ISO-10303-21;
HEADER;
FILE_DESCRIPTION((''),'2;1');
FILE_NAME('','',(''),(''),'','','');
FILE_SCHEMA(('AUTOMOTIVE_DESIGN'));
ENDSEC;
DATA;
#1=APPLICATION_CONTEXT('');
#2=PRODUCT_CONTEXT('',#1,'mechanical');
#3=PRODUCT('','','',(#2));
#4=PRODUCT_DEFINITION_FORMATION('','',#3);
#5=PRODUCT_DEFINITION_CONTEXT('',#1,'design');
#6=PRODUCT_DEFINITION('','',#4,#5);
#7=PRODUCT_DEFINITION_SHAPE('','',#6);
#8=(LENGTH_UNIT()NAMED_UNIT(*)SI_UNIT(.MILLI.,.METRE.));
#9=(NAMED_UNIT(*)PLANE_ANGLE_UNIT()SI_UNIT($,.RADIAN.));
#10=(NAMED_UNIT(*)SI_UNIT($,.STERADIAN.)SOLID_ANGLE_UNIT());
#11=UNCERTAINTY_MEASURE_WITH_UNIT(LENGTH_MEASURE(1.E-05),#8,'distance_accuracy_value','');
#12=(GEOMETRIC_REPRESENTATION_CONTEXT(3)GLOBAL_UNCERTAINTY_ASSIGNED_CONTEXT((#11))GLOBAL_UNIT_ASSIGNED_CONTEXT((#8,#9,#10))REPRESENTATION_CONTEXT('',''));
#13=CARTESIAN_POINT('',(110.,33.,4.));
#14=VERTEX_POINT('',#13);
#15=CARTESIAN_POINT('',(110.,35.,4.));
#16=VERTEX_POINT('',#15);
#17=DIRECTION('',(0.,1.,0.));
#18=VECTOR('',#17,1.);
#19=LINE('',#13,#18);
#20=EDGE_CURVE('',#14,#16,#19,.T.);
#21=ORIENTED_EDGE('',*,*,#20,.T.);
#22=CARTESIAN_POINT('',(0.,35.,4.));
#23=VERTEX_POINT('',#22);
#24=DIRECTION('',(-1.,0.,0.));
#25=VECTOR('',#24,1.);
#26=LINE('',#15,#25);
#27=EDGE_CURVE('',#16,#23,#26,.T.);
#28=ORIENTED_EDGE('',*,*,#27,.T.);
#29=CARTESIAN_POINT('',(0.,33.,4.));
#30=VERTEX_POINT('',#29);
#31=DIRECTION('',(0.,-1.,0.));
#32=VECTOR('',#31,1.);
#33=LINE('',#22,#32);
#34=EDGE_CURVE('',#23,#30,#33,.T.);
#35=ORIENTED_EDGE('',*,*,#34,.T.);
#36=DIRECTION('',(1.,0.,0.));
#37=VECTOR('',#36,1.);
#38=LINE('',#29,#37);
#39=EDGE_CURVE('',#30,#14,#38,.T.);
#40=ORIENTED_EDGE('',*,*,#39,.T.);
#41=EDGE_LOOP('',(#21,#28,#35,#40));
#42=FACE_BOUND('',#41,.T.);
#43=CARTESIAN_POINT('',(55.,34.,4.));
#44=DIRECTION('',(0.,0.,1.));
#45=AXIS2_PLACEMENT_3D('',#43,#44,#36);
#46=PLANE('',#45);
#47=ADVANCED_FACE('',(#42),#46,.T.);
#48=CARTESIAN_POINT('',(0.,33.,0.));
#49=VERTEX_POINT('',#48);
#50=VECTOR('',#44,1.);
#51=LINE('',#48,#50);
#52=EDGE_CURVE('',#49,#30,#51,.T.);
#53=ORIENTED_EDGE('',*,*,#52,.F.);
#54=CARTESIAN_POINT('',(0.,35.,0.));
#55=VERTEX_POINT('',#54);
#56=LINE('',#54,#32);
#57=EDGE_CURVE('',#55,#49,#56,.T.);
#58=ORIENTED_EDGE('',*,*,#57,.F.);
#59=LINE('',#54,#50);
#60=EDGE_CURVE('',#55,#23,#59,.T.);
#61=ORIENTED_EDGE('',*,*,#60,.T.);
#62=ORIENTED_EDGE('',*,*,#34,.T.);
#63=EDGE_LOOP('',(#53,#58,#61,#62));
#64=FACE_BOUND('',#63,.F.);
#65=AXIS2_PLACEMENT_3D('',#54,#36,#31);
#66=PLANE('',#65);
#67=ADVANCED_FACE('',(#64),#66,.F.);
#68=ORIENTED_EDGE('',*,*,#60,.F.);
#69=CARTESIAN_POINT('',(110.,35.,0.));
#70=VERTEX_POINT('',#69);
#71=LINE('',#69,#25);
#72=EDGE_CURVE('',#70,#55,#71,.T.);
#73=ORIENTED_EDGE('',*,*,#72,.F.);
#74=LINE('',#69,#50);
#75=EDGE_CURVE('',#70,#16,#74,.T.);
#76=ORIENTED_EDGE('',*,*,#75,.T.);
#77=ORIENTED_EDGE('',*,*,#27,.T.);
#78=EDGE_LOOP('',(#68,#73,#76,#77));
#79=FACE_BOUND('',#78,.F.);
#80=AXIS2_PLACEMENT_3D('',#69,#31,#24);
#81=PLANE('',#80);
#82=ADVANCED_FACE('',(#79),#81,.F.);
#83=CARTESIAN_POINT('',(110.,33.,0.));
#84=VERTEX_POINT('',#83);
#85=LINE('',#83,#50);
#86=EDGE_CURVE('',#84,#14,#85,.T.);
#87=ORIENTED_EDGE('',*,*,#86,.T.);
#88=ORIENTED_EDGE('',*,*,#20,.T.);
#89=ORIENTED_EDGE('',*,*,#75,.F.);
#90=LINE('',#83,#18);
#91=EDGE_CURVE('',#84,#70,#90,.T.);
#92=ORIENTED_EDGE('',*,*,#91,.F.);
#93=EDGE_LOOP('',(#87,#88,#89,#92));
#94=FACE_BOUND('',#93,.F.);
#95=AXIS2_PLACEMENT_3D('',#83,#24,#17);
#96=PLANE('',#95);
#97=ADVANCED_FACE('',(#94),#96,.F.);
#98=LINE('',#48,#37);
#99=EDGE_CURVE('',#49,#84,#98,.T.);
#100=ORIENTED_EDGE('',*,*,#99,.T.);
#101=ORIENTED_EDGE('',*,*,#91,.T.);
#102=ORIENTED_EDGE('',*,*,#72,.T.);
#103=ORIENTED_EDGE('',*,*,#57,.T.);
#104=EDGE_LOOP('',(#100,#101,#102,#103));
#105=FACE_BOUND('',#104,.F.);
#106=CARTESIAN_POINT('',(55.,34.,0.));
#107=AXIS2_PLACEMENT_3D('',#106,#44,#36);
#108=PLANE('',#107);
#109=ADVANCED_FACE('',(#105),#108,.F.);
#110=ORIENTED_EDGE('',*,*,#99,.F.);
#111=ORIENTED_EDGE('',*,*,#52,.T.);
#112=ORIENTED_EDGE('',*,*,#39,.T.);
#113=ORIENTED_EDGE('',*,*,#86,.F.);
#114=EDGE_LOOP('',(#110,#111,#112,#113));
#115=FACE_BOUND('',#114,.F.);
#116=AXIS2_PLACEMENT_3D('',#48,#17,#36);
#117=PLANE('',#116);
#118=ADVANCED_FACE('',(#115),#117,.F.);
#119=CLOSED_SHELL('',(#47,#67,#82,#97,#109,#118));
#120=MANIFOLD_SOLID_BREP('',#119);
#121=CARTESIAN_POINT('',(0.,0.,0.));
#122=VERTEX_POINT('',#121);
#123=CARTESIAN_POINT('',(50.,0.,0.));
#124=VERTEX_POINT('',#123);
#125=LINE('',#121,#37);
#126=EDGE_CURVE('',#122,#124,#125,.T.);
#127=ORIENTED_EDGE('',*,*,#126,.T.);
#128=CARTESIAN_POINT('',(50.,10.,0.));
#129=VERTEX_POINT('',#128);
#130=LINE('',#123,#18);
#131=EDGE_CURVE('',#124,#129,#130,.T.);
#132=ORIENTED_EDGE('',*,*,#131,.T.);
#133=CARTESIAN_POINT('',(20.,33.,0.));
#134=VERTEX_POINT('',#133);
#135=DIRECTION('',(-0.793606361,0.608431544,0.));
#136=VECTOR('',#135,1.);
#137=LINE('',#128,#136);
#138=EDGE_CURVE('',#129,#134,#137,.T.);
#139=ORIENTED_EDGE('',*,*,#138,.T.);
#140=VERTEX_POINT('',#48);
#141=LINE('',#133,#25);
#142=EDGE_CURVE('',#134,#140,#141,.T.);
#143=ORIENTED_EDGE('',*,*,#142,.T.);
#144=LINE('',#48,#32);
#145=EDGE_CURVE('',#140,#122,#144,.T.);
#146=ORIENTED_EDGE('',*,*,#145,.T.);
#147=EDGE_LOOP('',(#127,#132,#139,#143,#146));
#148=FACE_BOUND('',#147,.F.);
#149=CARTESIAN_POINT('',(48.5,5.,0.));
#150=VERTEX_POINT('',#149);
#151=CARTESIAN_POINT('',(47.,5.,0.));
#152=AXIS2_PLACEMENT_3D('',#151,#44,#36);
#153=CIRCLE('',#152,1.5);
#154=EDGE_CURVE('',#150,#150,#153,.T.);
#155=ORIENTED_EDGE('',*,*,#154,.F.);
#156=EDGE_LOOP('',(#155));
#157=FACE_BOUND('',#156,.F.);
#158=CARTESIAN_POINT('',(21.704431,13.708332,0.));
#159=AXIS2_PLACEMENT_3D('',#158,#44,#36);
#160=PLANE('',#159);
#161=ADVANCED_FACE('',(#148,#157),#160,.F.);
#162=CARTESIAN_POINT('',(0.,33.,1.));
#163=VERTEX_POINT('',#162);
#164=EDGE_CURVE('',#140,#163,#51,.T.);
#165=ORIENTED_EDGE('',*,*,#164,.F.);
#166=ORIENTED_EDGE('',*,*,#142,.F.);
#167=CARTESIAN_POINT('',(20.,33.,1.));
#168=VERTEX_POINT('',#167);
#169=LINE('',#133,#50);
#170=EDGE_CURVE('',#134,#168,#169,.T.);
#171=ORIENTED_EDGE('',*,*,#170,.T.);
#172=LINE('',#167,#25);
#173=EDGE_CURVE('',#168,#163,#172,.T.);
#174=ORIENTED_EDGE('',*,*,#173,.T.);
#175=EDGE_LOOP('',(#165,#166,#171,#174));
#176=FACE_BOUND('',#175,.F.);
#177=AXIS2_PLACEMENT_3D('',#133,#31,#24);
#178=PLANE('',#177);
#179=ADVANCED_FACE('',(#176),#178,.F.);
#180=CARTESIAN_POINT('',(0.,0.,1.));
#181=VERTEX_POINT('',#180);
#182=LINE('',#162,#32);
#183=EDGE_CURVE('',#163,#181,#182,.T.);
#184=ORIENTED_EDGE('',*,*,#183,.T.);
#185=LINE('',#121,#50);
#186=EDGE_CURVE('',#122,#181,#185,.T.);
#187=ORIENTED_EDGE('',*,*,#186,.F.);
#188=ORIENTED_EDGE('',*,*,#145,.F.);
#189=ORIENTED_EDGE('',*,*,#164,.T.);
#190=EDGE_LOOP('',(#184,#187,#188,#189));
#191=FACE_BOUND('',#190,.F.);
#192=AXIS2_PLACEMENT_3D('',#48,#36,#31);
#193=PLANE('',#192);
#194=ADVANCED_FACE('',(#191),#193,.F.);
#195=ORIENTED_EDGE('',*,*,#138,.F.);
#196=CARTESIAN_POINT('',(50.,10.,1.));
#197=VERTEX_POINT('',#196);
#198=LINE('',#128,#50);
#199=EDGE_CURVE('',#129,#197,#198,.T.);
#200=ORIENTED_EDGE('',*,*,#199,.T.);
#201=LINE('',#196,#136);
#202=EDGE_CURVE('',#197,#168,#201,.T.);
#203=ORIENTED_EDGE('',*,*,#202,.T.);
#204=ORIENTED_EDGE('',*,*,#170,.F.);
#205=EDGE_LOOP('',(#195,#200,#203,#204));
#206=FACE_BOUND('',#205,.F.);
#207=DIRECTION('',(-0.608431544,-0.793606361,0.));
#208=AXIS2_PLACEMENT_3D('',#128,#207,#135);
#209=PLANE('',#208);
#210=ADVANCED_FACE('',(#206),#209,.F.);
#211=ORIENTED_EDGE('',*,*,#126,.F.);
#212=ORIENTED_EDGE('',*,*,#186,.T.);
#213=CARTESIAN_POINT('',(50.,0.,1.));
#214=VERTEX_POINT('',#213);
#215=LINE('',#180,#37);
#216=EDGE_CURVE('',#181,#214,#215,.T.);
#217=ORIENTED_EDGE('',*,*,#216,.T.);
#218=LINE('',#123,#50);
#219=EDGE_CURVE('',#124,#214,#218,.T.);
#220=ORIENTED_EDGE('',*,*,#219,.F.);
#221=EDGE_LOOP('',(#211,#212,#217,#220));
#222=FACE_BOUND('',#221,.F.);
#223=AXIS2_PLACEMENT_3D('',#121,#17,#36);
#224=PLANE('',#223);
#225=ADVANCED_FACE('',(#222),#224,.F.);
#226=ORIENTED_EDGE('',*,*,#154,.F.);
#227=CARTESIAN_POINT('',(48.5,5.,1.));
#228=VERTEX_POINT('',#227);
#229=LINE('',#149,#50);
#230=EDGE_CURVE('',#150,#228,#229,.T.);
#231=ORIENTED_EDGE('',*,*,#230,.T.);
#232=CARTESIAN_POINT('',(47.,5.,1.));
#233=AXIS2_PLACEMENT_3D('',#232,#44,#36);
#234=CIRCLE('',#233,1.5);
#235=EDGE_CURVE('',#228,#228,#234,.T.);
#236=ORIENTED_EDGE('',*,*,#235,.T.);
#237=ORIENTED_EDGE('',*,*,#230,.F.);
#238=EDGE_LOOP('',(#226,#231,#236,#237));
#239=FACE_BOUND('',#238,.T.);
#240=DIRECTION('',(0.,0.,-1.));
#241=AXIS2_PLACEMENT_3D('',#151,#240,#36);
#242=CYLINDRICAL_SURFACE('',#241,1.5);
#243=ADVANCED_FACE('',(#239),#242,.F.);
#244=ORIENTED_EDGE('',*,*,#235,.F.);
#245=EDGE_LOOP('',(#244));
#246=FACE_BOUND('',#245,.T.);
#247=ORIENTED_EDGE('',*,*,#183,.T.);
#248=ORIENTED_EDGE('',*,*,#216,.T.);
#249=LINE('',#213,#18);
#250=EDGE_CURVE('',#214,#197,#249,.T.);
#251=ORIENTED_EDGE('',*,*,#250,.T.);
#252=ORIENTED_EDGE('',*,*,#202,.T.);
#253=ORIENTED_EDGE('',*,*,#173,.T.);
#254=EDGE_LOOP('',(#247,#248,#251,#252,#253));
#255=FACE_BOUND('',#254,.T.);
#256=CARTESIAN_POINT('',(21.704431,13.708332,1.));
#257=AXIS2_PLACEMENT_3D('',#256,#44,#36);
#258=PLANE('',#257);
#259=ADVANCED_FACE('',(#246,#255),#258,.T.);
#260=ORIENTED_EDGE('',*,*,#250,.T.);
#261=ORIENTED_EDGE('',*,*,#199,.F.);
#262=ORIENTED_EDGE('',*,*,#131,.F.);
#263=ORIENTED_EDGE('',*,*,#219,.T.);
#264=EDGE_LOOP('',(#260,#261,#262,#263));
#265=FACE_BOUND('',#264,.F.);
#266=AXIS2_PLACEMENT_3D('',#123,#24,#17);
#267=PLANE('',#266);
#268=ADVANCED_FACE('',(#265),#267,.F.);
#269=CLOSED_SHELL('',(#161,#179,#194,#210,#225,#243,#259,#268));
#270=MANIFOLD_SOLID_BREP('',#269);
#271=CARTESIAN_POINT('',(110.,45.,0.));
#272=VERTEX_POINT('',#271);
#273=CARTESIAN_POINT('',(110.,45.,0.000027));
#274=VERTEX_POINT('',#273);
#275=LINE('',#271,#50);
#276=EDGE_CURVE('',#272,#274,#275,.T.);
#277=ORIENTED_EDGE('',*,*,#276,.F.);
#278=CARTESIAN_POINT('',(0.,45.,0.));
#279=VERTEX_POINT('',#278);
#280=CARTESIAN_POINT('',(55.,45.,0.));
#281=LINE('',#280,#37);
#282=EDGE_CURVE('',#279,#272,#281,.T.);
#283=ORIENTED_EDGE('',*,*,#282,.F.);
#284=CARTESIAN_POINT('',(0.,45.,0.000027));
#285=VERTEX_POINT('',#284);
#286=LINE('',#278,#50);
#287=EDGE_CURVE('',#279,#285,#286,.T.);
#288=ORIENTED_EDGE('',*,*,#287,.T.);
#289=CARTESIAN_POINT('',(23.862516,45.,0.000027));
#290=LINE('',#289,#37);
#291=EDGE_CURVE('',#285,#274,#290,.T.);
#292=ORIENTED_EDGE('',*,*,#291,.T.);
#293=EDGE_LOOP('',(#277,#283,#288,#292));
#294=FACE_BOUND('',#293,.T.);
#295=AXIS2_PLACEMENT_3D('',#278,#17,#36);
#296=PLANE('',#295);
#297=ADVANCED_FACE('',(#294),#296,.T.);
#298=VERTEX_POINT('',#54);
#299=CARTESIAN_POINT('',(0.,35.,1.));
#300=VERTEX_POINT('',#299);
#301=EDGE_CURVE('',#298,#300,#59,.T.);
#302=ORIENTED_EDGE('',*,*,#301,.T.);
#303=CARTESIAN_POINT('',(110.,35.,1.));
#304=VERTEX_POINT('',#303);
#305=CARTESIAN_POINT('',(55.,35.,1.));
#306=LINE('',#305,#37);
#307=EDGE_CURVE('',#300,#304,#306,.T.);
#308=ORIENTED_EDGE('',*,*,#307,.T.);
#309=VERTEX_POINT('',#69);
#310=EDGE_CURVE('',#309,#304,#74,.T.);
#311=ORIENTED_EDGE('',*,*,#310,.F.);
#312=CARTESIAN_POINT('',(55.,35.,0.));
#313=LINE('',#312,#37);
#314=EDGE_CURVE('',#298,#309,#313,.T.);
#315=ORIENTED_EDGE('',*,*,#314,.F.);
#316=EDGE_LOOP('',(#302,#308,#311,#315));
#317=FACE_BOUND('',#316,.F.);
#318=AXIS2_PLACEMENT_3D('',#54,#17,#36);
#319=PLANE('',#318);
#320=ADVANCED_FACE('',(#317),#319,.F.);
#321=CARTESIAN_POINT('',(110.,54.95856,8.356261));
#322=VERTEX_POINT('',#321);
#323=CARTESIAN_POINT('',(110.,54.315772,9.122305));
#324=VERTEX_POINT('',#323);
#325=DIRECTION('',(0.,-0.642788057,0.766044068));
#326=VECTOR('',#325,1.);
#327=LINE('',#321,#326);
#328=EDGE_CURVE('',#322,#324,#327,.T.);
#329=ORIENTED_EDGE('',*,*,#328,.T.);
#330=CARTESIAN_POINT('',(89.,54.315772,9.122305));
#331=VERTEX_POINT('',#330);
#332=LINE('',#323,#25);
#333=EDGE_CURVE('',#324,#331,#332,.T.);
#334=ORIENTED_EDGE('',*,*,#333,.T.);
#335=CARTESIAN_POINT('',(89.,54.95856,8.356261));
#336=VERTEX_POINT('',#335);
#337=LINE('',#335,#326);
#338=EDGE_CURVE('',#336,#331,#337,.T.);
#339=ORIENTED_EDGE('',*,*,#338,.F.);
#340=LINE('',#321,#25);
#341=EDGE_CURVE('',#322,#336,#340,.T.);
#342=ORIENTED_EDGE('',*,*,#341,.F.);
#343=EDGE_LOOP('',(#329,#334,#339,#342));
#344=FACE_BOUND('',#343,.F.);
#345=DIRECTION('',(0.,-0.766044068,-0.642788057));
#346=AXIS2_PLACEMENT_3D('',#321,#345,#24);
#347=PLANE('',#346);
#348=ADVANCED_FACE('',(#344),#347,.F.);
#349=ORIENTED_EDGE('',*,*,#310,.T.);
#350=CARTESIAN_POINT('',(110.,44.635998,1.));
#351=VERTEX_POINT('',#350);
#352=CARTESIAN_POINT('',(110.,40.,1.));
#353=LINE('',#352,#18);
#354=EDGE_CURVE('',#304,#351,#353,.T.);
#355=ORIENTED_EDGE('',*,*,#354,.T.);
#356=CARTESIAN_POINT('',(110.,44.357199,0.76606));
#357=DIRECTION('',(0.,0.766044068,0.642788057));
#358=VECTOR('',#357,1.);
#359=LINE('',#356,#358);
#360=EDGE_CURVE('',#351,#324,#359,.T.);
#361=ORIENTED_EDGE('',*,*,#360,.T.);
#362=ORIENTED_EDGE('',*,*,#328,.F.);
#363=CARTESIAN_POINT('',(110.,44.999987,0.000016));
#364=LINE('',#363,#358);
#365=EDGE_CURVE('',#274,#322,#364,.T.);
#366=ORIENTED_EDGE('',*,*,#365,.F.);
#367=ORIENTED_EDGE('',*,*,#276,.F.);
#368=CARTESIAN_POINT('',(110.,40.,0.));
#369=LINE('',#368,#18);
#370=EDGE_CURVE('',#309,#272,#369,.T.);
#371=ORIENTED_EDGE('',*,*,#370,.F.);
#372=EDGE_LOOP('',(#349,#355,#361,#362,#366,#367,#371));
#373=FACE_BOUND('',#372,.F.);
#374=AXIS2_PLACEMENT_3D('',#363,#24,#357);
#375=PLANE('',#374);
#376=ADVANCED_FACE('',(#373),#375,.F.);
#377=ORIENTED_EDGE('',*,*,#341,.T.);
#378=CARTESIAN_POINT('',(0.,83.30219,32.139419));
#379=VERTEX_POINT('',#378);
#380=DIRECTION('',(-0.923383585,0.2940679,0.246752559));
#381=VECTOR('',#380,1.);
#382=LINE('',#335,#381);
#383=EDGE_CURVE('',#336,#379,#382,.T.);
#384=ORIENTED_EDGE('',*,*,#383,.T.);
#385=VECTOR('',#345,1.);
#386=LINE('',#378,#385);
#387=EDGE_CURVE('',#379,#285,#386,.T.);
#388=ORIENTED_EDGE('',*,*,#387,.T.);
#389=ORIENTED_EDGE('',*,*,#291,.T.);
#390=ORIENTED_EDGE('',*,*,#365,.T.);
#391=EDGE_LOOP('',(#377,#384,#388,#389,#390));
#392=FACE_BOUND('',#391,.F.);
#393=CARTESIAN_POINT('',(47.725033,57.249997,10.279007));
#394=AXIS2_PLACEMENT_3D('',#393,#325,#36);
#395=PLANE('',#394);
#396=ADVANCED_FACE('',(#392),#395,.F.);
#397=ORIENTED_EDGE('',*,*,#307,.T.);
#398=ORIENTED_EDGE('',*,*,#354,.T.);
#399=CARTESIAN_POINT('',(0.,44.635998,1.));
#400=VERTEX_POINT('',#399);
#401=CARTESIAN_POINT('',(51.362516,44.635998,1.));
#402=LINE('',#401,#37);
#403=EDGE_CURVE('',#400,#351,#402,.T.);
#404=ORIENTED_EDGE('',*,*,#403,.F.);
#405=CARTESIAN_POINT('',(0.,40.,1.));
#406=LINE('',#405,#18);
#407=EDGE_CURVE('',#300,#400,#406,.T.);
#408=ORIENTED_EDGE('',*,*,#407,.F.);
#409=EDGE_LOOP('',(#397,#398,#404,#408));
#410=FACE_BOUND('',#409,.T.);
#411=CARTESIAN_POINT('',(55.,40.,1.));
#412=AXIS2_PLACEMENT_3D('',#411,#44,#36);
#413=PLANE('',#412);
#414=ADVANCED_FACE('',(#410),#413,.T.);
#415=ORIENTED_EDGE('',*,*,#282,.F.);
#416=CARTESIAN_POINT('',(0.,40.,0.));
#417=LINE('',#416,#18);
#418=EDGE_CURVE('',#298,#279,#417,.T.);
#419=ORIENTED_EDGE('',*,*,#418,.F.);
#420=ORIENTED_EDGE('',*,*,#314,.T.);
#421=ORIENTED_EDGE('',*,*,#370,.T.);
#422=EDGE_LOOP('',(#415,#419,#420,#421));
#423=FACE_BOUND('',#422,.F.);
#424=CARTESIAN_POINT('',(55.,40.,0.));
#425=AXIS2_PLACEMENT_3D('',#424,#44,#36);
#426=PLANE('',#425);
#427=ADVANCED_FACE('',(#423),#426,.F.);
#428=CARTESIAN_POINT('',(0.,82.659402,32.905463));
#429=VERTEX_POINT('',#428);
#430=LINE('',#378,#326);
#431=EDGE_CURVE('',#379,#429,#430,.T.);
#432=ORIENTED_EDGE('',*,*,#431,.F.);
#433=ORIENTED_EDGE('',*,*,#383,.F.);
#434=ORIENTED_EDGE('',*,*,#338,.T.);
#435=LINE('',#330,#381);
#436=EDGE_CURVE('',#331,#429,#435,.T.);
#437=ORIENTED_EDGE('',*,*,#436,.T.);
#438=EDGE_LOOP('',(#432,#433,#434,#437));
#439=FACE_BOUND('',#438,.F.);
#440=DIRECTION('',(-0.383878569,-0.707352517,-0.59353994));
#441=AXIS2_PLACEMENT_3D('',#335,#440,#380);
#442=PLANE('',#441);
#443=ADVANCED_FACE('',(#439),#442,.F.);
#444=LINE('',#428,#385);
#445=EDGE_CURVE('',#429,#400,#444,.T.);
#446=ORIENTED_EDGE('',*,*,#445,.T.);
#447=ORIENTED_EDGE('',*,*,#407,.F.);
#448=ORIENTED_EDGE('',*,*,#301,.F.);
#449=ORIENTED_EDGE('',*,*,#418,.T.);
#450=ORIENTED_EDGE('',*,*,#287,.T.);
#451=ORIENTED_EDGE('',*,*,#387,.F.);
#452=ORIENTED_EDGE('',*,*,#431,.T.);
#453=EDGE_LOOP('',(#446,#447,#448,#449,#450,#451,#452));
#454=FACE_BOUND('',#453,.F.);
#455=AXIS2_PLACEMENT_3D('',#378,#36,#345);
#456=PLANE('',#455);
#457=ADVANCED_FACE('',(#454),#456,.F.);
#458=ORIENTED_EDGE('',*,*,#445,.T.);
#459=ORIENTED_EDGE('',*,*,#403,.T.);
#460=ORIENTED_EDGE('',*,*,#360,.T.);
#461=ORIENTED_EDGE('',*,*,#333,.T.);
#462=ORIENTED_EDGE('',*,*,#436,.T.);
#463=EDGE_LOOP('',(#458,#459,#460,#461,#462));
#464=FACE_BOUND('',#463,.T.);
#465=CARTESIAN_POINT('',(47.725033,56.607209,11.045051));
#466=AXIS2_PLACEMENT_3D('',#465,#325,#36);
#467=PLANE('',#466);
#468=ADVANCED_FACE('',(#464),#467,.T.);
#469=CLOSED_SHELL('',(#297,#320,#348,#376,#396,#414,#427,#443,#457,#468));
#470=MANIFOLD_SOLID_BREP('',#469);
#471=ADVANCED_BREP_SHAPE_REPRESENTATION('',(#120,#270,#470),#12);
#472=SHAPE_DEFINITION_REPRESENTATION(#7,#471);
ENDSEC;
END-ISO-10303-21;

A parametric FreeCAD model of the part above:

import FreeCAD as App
import Part
import Sketcher


def add_polygon(sketch, points):
    """Adds a closed chain of lines whose ends are joined by coincident constraints."""
    first, n = sketch.GeometryCount, len(points)
    for a, b in zip(points, points[1:] + points[:1]):
        sketch.addGeometry(Part.LineSegment(App.Vector(*a, 0), App.Vector(*b, 0)), False)
    for i in range(n):
        sketch.addConstraint(Sketcher.Constraint("Coincident", first + i, 2, first + (i + 1) % n, 1))

doc = App.newDocument("Part")
body = doc.addObject("PartDesign::Body", "Body")
body.AllowCompound = True

sketch1 = doc.addObject("Sketcher::SketchObject", "Sketch")
body.addObject(sketch1)
sketch1.AttachmentSupport = (doc.XY_Plane, [""])
sketch1.MapMode = "FlatFace"
add_polygon(sketch1, [(0, 45), (0, 35), (110, 35), (110, 45)])
add_polygon(sketch1, [(50, 10), (20, 33), (0, 33), (0, 0), (50, 0)])
sketch1.addGeometry(Part.Circle(App.Vector(47, 5, 0), App.Vector(0, 0, 1), 1.5), False)
sketch1.addConstraint([
    Sketcher.Constraint("Vertical", 0),
    Sketcher.Constraint("Horizontal", 1),
    Sketcher.Constraint("Vertical", 2),
    Sketcher.Constraint("Horizontal", 3),
    Sketcher.Constraint("Horizontal", 5),
    Sketcher.Constraint("Vertical", 6),
    Sketcher.Constraint("Horizontal", 7),
    Sketcher.Constraint("Vertical", 8),
    Sketcher.Constraint("Coincident", 6, 2, -1, 1),
    Sketcher.Constraint("PointOnObject", 0, 2, -2),
    Sketcher.Constraint("Equal", 2, 8),
    Sketcher.Constraint("Diameter", 9, 3.0),
    Sketcher.Constraint("DistanceX", 1, 1, 1, 2, 110.0),
    Sketcher.Constraint("DistanceX", 5, 2, 5, 1, 20.0),
    Sketcher.Constraint("DistanceX", 7, 1, 7, 2, 50.0),
    Sketcher.Constraint("DistanceY", 0, 2, 0, 1, 10.0),
    Sketcher.Constraint("DistanceY", 6, 2, 6, 1, 33.0),
    Sketcher.Constraint("DistanceX", -1, 1, 9, 3, 47.0),
    Sketcher.Constraint("DistanceY", -1, 1, 9, 3, 5.0),
    Sketcher.Constraint("DistanceY", -1, 1, 0, 2, 35.0),
])
pad1 = doc.addObject("PartDesign::Pad", "Pad")
body.addObject(pad1)
pad1.Profile = sketch1
pad1.Length = 1

sketch2 = doc.addObject("Sketcher::SketchObject", "Sketch001")
body.addObject(sketch2)
sketch2.Placement = App.Placement(App.Vector(0, 18.592916, -22.158174), App.Rotation(App.Vector(1, 0, 0), App.Vector(0, 0.766044068, 0.642788057), App.Vector(0, -0.642788057, 0.766044068), "ZXY"))
add_polygon(sketch2, [(0, 84), (0, 34), (110, 34), (110, 47), (89, 47)])
sketch2.addConstraint([
    Sketcher.Constraint("Vertical", 0),
    Sketcher.Constraint("Horizontal", 1),
    Sketcher.Constraint("Vertical", 2),
    Sketcher.Constraint("Horizontal", 3),
    Sketcher.Constraint("PointOnObject", 0, 2, -2),
    Sketcher.Constraint("DistanceX", 1, 1, 1, 2, 110.0),
    Sketcher.Constraint("DistanceX", 3, 2, 3, 1, 21.0),
    Sketcher.Constraint("DistanceY", 0, 2, 0, 1, 50.0),
    Sketcher.Constraint("DistanceY", 2, 1, 2, 2, 13.0),
    Sketcher.Constraint("DistanceY", -1, 1, 0, 2, 34.472),
])
pad2 = doc.addObject("PartDesign::Pad", "Pad001")
body.addObject(pad2)
pad2.Profile = sketch2
pad2.Length = 1
body2 = doc.addObject("PartDesign::Body", "Body001")

sketch3 = doc.addObject("Sketcher::SketchObject", "Sketch002")
body2.addObject(sketch3)
sketch3.AttachmentSupport = (doc.getObject("XY_Plane001"), [""])
sketch3.MapMode = "FlatFace"
add_polygon(sketch3, [(0, 35), (0, 33), (110, 33), (110, 35)])
sketch3.addConstraint([
    Sketcher.Constraint("Vertical", 0),
    Sketcher.Constraint("Horizontal", 1),
    Sketcher.Constraint("Vertical", 2),
    Sketcher.Constraint("Horizontal", 3),
    Sketcher.Constraint("PointOnObject", 0, 2, -2),
    Sketcher.Constraint("DistanceX", 1, 1, 1, 2, 110.0),
    Sketcher.Constraint("DistanceY", 0, 2, 0, 1, 2.0),
    Sketcher.Constraint("DistanceY", -1, 1, 0, 2, 33.0),
])
pad3 = doc.addObject("PartDesign::Pad", "Pad002")
body2.addObject(pad3)
pad3.Profile = sketch3
pad3.Length = 4

doc.recompute()
